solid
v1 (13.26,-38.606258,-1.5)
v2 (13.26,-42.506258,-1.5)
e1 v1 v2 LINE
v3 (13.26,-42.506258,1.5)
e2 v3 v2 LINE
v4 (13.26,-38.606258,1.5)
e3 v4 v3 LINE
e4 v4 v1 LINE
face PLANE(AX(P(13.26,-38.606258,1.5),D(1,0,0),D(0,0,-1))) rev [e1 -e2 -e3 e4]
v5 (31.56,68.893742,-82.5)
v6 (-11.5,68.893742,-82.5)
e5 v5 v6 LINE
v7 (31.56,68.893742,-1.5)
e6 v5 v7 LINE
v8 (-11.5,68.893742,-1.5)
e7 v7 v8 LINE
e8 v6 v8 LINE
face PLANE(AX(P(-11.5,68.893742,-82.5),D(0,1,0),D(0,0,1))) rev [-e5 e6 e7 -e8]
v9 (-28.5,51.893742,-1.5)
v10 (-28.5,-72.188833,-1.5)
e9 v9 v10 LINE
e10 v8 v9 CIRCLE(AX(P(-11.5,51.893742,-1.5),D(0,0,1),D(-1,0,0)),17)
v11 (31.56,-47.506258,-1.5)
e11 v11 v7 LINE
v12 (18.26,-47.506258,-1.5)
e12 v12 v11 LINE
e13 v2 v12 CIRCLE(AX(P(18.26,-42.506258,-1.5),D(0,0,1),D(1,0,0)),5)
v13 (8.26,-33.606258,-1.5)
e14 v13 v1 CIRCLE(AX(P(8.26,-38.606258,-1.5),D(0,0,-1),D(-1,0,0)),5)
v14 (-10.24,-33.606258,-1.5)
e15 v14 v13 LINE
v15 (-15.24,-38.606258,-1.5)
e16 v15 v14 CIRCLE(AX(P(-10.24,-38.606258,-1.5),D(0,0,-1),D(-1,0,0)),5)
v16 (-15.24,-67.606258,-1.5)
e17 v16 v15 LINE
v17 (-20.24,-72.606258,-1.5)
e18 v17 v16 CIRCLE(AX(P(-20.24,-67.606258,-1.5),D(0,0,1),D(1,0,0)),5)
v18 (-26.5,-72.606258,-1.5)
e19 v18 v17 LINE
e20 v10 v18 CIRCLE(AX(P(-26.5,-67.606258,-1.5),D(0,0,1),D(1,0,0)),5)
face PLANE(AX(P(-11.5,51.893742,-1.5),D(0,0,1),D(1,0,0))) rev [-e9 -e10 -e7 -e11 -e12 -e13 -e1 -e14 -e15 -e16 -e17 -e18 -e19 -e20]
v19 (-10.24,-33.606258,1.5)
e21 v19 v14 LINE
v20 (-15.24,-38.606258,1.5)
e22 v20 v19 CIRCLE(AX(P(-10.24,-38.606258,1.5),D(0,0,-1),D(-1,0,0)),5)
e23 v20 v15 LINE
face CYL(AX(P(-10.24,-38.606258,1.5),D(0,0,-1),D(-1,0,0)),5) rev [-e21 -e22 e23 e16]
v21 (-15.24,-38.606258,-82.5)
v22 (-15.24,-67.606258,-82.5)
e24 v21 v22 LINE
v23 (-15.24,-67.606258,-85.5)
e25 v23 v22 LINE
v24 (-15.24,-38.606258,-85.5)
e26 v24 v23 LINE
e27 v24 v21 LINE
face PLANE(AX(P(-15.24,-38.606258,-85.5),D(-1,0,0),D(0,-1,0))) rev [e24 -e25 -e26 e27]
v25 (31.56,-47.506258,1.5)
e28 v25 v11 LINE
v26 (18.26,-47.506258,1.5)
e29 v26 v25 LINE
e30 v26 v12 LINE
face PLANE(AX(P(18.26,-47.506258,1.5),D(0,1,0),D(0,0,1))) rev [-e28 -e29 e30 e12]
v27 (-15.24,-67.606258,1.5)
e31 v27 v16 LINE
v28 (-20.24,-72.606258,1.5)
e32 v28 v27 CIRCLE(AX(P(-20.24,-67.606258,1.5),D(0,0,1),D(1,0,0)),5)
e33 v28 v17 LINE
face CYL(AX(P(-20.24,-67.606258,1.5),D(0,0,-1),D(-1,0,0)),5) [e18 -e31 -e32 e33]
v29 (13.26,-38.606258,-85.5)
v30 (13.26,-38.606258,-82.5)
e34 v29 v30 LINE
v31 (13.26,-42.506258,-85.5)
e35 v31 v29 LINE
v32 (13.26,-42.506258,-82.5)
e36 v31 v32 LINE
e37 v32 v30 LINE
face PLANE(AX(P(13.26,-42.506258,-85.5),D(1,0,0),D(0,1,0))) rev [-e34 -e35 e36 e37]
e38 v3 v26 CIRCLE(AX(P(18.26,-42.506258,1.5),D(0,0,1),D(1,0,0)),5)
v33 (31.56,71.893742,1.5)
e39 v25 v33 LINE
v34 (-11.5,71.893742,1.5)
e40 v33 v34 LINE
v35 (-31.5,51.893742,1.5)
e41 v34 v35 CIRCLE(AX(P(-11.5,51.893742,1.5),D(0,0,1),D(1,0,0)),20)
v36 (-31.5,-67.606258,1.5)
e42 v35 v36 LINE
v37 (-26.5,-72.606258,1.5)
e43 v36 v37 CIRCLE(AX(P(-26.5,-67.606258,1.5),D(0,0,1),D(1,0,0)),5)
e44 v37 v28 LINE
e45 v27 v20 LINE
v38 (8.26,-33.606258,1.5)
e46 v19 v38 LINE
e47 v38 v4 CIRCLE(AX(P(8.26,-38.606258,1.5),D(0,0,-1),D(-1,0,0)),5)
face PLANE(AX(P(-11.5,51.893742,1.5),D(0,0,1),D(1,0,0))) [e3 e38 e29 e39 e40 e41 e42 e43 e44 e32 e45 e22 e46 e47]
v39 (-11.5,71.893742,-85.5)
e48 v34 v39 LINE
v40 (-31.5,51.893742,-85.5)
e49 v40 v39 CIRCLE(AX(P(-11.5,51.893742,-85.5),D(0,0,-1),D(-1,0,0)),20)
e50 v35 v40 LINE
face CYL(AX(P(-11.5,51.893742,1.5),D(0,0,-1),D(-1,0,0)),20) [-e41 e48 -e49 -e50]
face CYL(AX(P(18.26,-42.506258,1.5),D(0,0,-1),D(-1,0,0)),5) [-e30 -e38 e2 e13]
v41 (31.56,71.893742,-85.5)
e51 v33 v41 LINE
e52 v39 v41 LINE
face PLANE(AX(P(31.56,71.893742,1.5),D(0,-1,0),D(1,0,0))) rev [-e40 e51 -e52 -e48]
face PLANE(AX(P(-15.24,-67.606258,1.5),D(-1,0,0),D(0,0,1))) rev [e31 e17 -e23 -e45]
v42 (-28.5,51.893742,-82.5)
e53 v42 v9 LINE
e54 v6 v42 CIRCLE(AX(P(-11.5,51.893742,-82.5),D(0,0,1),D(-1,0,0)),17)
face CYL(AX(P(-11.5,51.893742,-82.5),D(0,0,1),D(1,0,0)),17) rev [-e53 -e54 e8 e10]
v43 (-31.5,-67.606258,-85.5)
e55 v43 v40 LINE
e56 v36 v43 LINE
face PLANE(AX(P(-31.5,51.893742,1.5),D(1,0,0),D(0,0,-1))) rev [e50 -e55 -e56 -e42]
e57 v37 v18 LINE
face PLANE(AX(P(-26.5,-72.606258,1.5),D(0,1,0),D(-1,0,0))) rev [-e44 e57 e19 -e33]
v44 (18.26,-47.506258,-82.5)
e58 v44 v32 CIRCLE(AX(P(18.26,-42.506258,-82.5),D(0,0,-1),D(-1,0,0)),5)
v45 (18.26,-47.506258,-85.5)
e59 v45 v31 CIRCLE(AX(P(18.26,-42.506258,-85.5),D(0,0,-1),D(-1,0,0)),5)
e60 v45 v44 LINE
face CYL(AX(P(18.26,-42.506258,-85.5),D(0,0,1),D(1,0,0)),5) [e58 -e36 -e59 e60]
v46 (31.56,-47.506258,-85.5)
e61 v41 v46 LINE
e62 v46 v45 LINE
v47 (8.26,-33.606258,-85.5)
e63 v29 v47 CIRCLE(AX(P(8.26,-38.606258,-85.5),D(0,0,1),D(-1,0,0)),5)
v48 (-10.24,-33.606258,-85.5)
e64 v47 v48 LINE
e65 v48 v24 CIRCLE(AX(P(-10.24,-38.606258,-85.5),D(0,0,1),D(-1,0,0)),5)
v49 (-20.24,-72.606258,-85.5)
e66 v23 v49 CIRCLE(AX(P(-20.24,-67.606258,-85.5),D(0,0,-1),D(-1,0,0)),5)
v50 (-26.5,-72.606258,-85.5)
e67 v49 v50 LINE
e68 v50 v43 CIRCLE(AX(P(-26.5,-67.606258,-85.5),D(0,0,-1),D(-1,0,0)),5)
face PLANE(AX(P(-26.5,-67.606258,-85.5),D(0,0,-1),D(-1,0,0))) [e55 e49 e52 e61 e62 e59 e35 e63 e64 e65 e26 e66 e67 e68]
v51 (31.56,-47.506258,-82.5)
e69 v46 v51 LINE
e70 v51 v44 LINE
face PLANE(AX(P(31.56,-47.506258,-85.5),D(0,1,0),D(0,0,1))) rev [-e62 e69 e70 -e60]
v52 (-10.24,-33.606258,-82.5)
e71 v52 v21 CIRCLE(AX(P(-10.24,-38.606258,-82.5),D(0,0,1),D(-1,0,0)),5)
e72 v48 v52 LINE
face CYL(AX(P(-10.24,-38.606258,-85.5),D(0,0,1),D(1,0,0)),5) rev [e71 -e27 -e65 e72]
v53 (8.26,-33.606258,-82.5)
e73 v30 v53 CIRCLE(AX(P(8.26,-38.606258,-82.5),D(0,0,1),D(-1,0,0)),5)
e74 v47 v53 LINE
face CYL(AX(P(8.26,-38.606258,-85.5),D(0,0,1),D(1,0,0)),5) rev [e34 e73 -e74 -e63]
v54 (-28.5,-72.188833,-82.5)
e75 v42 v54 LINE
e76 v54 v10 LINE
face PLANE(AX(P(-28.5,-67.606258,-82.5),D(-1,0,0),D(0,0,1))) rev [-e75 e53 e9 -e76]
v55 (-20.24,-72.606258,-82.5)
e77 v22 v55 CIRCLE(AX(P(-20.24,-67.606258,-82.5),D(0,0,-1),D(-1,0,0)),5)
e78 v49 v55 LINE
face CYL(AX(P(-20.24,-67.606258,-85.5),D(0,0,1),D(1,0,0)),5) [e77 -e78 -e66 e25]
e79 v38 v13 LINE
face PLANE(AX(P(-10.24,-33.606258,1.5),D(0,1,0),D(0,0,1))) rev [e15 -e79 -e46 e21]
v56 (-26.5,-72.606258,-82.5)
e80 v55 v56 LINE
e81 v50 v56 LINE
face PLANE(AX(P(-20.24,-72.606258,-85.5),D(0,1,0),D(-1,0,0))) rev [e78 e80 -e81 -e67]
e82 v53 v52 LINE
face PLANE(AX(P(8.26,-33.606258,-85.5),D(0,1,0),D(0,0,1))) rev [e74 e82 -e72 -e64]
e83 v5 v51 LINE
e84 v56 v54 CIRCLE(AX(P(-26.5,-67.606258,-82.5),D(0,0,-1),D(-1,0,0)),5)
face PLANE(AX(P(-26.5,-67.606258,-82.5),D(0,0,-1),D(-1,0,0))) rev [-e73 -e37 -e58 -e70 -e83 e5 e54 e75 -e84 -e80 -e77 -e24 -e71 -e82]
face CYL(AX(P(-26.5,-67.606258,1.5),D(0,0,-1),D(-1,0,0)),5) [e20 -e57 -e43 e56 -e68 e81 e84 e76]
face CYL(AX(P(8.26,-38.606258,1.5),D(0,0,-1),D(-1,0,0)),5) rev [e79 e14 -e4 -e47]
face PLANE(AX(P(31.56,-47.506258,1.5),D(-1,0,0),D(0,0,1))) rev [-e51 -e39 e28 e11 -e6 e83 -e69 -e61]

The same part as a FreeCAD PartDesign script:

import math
import FreeCAD as App
import Part
import Sketcher
Q = App.Units.Quantity

doc = App.newDocument("Part")
body = doc.addObject("PartDesign::Body", "Body")

# Sketch on XY plane
sketch1 = body.newObject("Sketcher::SketchObject", "Sketch")
sketch1.AttachmentSupport = (doc.getObject("XY_Plane"), [""])
sketch1.MapMode = "FlatFace"
sketch1.addGeometry([
    Part.LineSegment(App.Vector(31.56, -47.506258, 0), App.Vector(31.56, 71.893742, 0)),  # 0
    Part.LineSegment(App.Vector(31.56, 71.893742, 0), App.Vector(-11.5, 71.893742, 0)),  # 1
    Part.ArcOfCircle(Part.Circle(App.Vector(-11.5, 51.893742, 0), App.Vector(0, 0, 1), 20), math.radians(90), math.radians(180)),  # 2
    Part.LineSegment(App.Vector(-31.5, 51.893742, 0), App.Vector(-31.5, -67.606258, 0)),  # 3
    Part.ArcOfCircle(Part.Circle(App.Vector(-26.5, -67.606258, 0), App.Vector(0, 0, 1), 5), math.radians(180), math.radians(270)),  # 4
    Part.LineSegment(App.Vector(-26.5, -72.606258, 0), App.Vector(-20.24, -72.606258, 0)),  # 5
    Part.ArcOfCircle(Part.Circle(App.Vector(-20.24, -67.606258, 0), App.Vector(0, 0, 1), 5), math.radians(-90), math.radians(0)),  # 6
    Part.LineSegment(App.Vector(-15.24, -67.606258, 0), App.Vector(-15.24, -38.606258, 0)),  # 7
    Part.ArcOfCircle(Part.Circle(App.Vector(-10.24, -38.606258, 0), App.Vector(0, 0, 1), 5), math.radians(90), math.radians(180)),  # 8
    Part.LineSegment(App.Vector(-10.24, -33.606258, 0), App.Vector(8.26, -33.606258, 0)),  # 9
    Part.ArcOfCircle(Part.Circle(App.Vector(8.26, -38.606258, 0), App.Vector(0, 0, 1), 5), math.radians(0), math.radians(90)),  # 10
    Part.LineSegment(App.Vector(13.26, -38.606258, 0), App.Vector(13.26, -42.506258, 0)),  # 11
    Part.ArcOfCircle(Part.Circle(App.Vector(18.26, -42.506258, 0), App.Vector(0, 0, 1), 5), math.radians(180), math.radians(270)),  # 12
    Part.LineSegment(App.Vector(18.26, -47.506258, 0), App.Vector(31.56, -47.506258, 0)),  # 13
], False)
sketch1.addConstraint([
    Sketcher.Constraint("Coincident", 0, 2, 1, 1),
    Sketcher.Constraint("Tangent", 1, 2, 2, 1),
    Sketcher.Constraint("Tangent", 2, 2, 3, 1),
    Sketcher.Constraint("Tangent", 3, 2, 4, 1),
    Sketcher.Constraint("Tangent", 4, 2, 5, 1),
    Sketcher.Constraint("Tangent", 5, 2, 6, 1),
    Sketcher.Constraint("Tangent", 6, 2, 7, 1),
    Sketcher.Constraint("Tangent", 7, 2, 8, 2),
    Sketcher.Constraint("Tangent", 8, 1, 9, 1),
    Sketcher.Constraint("Tangent", 9, 2, 10, 2),
    Sketcher.Constraint("Tangent", 10, 1, 11, 1),
    Sketcher.Constraint("Tangent", 11, 2, 12, 1),
    Sketcher.Constraint("Tangent", 12, 2, 13, 1),
    Sketcher.Constraint("Coincident", 13, 2, 0, 1),
    Sketcher.Constraint("Vertical", 0),
    Sketcher.Constraint("Horizontal", 1),
    Sketcher.Constraint("Vertical", 3),
    Sketcher.Constraint("Horizontal", 5),
    Sketcher.Constraint("Vertical", 7),
    Sketcher.Constraint("Horizontal", 9),
    Sketcher.Constraint("Vertical", 11),
    Sketcher.Constraint("Horizontal", 13),
    Sketcher.Constraint("Equal", 4, 6),
    Sketcher.Constraint("Equal", 6, 8),
    Sketcher.Constraint("Equal", 8, 10),
    Sketcher.Constraint("Equal", 10, 12),
    Sketcher.Constraint("Radius", 2, Q("20 mm")),
    Sketcher.Constraint("Radius", 4, Q("5 mm")),
    Sketcher.Constraint("DistanceY", 7, 1, 7, 2, Q("29 mm")),
    Sketcher.Constraint("DistanceX", 9, 1, 9, 2, Q("18.5 mm")),
    Sketcher.Constraint("DistanceX", 13, 1, 13, 2, Q("13.3 mm")),
    Sketcher.Constraint("DistanceY", 0, 1, 0, 2, Q("119.4 mm")),
    Sketcher.Constraint("DistanceY", 3, 2, 3, 1, Q("119.5 mm")),
    Sketcher.Constraint("DistanceX", 1, 2, 1, 1, Q("43.06 mm")),
    Sketcher.Constraint("DistanceX", 2, 3, -1, 1, Q("11.5 mm")),
    Sketcher.Constraint("DistanceY", -1, 1, 2, 3, Q("51.893742 mm")),
])
pad1 = body.newObject("PartDesign::Pad", "Pad")
pad1.Profile = sketch1
pad1.Length = 3
pad1.Midplane = True

# Sketch on XY plane
sketch2 = body.newObject("Sketcher::SketchObject", "Sketch001")
sketch2.AttachmentSupport = (doc.getObject("XY_Plane"), [""])
sketch2.MapMode = "FlatFace"
sketch2.AttachmentOffset = App.Placement(App.Vector(0, 0, -1.5), App.Rotation())
sketch2.addGeometry([
    Part.ArcOfCircle(Part.Circle(App.Vector(-11.5, 51.893742, 0), App.Vector(0, 0, 1), 17), math.radians(90), math.radians(180)),  # 0
    Part.LineSegment(App.Vector(-28.5, 51.893742, 0), App.Vector(-28.5, -72.188833, 0)),  # 1
    Part.ArcOfCircle(Part.Circle(App.Vector(-26.5, -67.606258, 0), App.Vector(0, 0, 1), 5), math.radians(180), math.radians(246.421822)),  # 2
    Part.LineSegment(App.Vector(-31.5, -67.606258, 0), App.Vector(-31.5, 51.893742, 0)),  # 3
    Part.ArcOfCircle(Part.Circle(App.Vector(-11.5, 51.893742, 0), App.Vector(0, 0, 1), 20), math.radians(90), math.radians(180)),  # 4
    Part.LineSegment(App.Vector(-11.5, 71.893742, 0), App.Vector(31.56, 71.893742, 0)),  # 5
    Part.LineSegment(App.Vector(31.56, 71.893742, 0), App.Vector(31.56, 68.893742, 0)),  # 6
    Part.LineSegment(App.Vector(31.56, 68.893742, 0), App.Vector(-11.5, 68.893742, 0)),  # 7
], False)
sketch2.addConstraint([
    Sketcher.Constraint("Tangent", 0, 2, 1, 1),
    Sketcher.Constraint("Coincident", 1, 2, 2, 2),
    Sketcher.Constraint("Tangent", 2, 1, 3, 1),
    Sketcher.Constraint("Tangent", 3, 2, 4, 2),
    Sketcher.Constraint("Tangent", 4, 1, 5, 1),
    Sketcher.Constraint("Coincident", 5, 2, 6, 1),
    Sketcher.Constraint("Coincident", 6, 2, 7, 1),
    Sketcher.Constraint("Tangent", 7, 2, 0, 1),
    Sketcher.Constraint("Vertical", 1),
    Sketcher.Constraint("Vertical", 3),
    Sketcher.Constraint("Horizontal", 5),
    Sketcher.Constraint("Vertical", 6),
    Sketcher.Constraint("Horizontal", 7),
    Sketcher.Constraint("Coincident", 4, 3, 0, 3),
    Sketcher.Constraint("Radius", 0, Q("17 mm")),
    Sketcher.Constraint("Radius", 2, Q("5 mm")),
    Sketcher.Constraint("Radius", 4, Q("20 mm")),
    Sketcher.Constraint("DistanceY", 3, 1, 3, 2, Q("119.5 mm")),
    Sketcher.Constraint("DistanceX", 5, 1, 5, 2, Q("43.06 mm")),
    Sketcher.Constraint("DistanceX", 0, 3, -1, 1, Q("11.5 mm")),
    Sketcher.Constraint("DistanceY", -1, 1, 0, 3, Q("51.893742 mm")),
])
pad2 = body.newObject("PartDesign::Pad", "Pad001")
pad2.Profile = sketch2
pad2.Length = 81
pad2.Reversed = True

# Sketch on XY plane
sketch3 = body.newObject("Sketcher::SketchObject", "Sketch002")
sketch3.AttachmentSupport = (doc.getObject("XY_Plane"), [""])
sketch3.MapMode = "FlatFace"
sketch3.AttachmentOffset = App.Placement(App.Vector(0, 0, -82.5), App.Rotation())
sketch3.addGeometry([
    Part.LineSegment(App.Vector(-11.5, 71.893742, 0), App.Vector(31.56, 71.893742, 0)),  # 0
    Part.LineSegment(App.Vector(31.56, 71.893742, 0), App.Vector(31.56, -47.506258, 0)),  # 1
    Part.LineSegment(App.Vector(31.56, -47.506258, 0), App.Vector(18.26, -47.506258, 0)),  # 2
    Part.ArcOfCircle(Part.Circle(App.Vector(18.26, -42.506258, 0), App.Vector(0, 0, 1), 5), math.radians(180), math.radians(270)),  # 3
    Part.LineSegment(App.Vector(13.26, -42.506258, 0), App.Vector(13.26, -38.606258, 0)),  # 4
    Part.ArcOfCircle(Part.Circle(App.Vector(8.26, -38.606258, 0), App.Vector(0, 0, 1), 5), math.radians(0), math.radians(90)),  # 5
    Part.LineSegment(App.Vector(8.26, -33.606258, 0), App.Vector(-10.24, -33.606258, 0)),  # 6
    Part.ArcOfCircle(Part.Circle(App.Vector(-10.24, -38.606258, 0), App.Vector(0, 0, 1), 5), math.radians(90), math.radians(180)),  # 7
    Part.LineSegment(App.Vector(-15.24, -38.606258, 0), App.Vector(-15.24, -67.606258, 0)),  # 8
    Part.ArcOfCircle(Part.Circle(App.Vector(-20.24, -67.606258, 0), App.Vector(0, 0, 1), 5), math.radians(-90), math.radians(0)),  # 9
    Part.LineSegment(App.Vector(-20.24, -72.606258, 0), App.Vector(-26.5, -72.606258, 0)),  # 10
    Part.ArcOfCircle(Part.Circle(App.Vector(-26.5, -67.606258, 0), App.Vector(0, 0, 1), 5), math.radians(-113.578179), math.radians(-90)),  # 11
    Part.ArcOfCircle(Part.Circle(App.Vector(-26.5, -67.606258, 0), App.Vector(0, 0, 1), 5), math.radians(180), math.radians(246.421822)),  # 12
    Part.LineSegment(App.Vector(-31.5, -67.606258, 0), App.Vector(-31.5, 51.893742, 0)),  # 13
    Part.ArcOfCircle(Part.Circle(App.Vector(-11.5, 51.893742, 0), App.Vector(0, 0, 1), 20), math.radians(90), math.radians(180)),  # 14
], False)
sketch3.addConstraint([
    Sketcher.Constraint("Coincident", 0, 2, 1, 1),
    Sketcher.Constraint("Coincident", 1, 2, 2, 1),
    Sketcher.Constraint("Tangent", 2, 2, 3, 2),
    Sketcher.Constraint("Tangent", 3, 1, 4, 1),
    Sketcher.Constraint("Tangent", 4, 2, 5, 1),
    Sketcher.Constraint("Tangent", 5, 2, 6, 1),
    Sketcher.Constraint("Tangent", 6, 2, 7, 1),
    Sketcher.Constraint("Tangent", 7, 2, 8, 1),
    Sketcher.Constraint("Tangent", 8, 2, 9, 2),
    Sketcher.Constraint("Tangent", 9, 1, 10, 1),
    Sketcher.Constraint("Tangent", 10, 2, 11, 2),
    Sketcher.Constraint("Tangent", 11, 1, 12, 2),
    Sketcher.Constraint("Tangent", 12, 1, 13, 1),
    Sketcher.Constraint("Tangent", 13, 2, 14, 2),
    Sketcher.Constraint("Tangent", 14, 1, 0, 1),
    Sketcher.Constraint("Horizontal", 0),
    Sketcher.Constraint("Vertical", 1),
    Sketcher.Constraint("Horizontal", 2),
    Sketcher.Constraint("Vertical", 4),
    Sketcher.Constraint("Horizontal", 6),
    Sketcher.Constraint("Vertical", 8),
    Sketcher.Constraint("Horizontal", 10),
    Sketcher.Constraint("Vertical", 13),
    Sketcher.Constraint("Equal", 3, 5),
    Sketcher.Constraint("Equal", 5, 7),
    Sketcher.Constraint("Equal", 7, 9),
    Sketcher.Constraint("Equal", 9, 11),
    Sketcher.Constraint("Equal", 11, 12),
    Sketcher.Constraint("Radius", 3, Q("5 mm")),
    Sketcher.Constraint("Radius", 14, Q("20 mm")),
    Sketcher.Constraint("DistanceY", 8, 2, 8, 1, Q("29 mm")),
    Sketcher.Constraint("DistanceX", 2, 2, 2, 1, Q("13.3 mm")),
    Sketcher.Constraint("DistanceX", 6, 2, 6, 1, Q("18.5 mm")),
    Sketcher.Constraint("DistanceY", 1, 2, 1, 1, Q("119.4 mm")),
    Sketcher.Constraint("DistanceY", 4, 1, 4, 2, Q("3.9 mm")),
    Sketcher.Constraint("DistanceX", 11, 1, 10, 2, Q("2 mm")),
    Sketcher.Constraint("DistanceX", 0, 1, 0, 2, Q("43.06 mm")),
    Sketcher.Constraint("DistanceX", 11, 3, -1, 1, Q("26.5 mm")),
    Sketcher.Constraint("DistanceY", 3, 3, -1, 1, Q("42.506258 mm")),
])
pad3 = body.newObject("PartDesign::Pad", "Pad002")
pad3.Profile = sketch3
pad3.Length = 3
pad3.Reversed = True

doc.recompute()
